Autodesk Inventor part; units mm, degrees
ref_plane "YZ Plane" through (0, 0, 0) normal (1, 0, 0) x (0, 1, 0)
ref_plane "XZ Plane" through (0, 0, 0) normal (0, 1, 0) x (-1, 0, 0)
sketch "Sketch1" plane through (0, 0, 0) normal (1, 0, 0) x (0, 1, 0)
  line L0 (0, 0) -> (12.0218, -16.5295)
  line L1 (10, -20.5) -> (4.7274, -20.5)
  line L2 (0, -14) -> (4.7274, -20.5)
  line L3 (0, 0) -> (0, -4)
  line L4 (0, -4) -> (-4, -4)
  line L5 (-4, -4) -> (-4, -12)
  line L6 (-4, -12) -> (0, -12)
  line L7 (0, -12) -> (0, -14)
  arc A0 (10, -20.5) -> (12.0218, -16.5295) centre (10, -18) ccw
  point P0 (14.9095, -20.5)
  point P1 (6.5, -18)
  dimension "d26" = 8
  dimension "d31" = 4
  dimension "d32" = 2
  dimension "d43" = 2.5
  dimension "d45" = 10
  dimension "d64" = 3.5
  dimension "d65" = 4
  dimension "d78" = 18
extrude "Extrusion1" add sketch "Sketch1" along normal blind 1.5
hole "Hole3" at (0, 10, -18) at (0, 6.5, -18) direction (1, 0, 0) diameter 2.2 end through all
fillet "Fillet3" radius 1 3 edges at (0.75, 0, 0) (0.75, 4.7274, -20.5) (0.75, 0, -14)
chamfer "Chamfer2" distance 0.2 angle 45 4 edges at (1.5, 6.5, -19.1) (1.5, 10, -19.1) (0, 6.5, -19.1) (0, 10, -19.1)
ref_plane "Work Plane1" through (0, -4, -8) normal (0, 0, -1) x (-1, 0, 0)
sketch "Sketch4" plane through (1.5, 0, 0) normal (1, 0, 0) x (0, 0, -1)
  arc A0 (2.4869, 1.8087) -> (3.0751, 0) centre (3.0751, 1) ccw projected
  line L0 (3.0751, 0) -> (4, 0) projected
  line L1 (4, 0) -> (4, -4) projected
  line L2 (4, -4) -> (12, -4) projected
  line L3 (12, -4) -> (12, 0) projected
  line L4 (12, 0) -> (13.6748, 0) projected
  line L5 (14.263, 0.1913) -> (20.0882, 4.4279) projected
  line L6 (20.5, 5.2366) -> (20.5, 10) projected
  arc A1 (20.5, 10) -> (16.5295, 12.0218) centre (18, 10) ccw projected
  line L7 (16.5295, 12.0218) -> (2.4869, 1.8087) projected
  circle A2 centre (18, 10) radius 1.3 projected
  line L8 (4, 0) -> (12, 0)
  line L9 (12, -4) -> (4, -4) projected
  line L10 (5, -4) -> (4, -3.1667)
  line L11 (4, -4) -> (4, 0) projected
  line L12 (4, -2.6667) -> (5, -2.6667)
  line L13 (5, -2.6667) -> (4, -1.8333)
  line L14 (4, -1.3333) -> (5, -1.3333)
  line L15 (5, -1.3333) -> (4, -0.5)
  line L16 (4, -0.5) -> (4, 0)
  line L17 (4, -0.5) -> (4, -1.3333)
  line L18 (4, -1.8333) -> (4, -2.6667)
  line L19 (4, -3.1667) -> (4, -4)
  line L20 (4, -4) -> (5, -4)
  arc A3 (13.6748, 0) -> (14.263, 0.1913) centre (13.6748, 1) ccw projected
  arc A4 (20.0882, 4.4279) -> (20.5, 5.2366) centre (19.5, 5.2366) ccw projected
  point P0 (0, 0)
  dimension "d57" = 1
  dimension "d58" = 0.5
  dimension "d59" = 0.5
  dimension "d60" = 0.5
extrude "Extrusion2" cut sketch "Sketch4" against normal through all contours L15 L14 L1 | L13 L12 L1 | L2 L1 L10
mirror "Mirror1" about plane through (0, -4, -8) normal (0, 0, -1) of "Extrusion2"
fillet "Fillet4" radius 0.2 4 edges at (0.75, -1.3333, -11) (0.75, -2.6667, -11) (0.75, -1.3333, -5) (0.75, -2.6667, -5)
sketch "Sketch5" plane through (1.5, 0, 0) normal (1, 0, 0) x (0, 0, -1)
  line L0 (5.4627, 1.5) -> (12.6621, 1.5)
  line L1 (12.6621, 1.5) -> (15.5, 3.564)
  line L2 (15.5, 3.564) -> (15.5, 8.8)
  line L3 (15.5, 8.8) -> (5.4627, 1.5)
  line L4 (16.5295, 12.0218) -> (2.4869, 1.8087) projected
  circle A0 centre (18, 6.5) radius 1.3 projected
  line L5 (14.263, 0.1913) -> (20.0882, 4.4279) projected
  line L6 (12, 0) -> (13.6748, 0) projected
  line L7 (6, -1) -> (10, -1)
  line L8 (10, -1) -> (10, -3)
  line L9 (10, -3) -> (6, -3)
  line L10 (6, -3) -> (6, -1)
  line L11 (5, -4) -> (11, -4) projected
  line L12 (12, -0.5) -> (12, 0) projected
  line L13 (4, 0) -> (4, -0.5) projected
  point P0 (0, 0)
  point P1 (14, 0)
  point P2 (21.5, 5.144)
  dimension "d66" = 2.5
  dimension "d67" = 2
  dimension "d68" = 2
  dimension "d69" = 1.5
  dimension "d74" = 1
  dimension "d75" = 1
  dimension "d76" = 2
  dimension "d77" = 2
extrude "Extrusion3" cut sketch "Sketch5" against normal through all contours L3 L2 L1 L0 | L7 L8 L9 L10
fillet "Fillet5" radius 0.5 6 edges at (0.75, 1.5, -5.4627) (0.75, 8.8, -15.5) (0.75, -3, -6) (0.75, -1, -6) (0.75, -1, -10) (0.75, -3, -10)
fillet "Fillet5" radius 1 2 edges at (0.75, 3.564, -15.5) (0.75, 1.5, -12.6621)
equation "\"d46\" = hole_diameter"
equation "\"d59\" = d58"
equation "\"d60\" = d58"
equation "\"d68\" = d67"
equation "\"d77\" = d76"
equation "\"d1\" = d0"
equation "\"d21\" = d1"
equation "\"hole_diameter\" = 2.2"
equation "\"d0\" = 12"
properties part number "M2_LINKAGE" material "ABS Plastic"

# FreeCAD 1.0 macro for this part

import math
import FreeCAD as App
import Part
import Sketcher
from FreeCAD import Vector


def edges_at(feature, points):
    """Names of the edges that pass closest to the given points."""
    edges = feature.Shape.Edges
    near = lambda p: min(range(len(edges)), key=lambda i: edges[i].distToShape(Part.Vertex(*p))[0])
    return sorted({f"Edge{near(p) + 1}" for p in points})

doc = App.newDocument("Part")
body = doc.addObject("PartDesign::Body", "Body")

# Sketch on YZ plane
sketch1 = body.newObject("Sketcher::SketchObject", "Sketch")
sketch1.AttachmentSupport = (doc.getObject("YZ_Plane"), [""])
sketch1.MapMode = "FlatFace"
sketch1.addGeometry(Part.LineSegment(Vector(12, -16.5, 0), Vector(0, 0, 0)), False)
sketch1.addGeometry(Part.LineSegment(Vector(0, 0, 0), Vector(0, -4, 0)), False)
sketch1.addGeometry(Part.LineSegment(Vector(0, -4, 0), Vector(-4, -4, 0)), False)
sketch1.addGeometry(Part.LineSegment(Vector(-4, -4, 0), Vector(-4, -12, 0)), False)
sketch1.addGeometry(Part.LineSegment(Vector(-4, -12, 0), Vector(0, -12, 0)), False)
sketch1.addGeometry(Part.LineSegment(Vector(0, -12, 0), Vector(0, -14, 0)), False)
sketch1.addGeometry(Part.LineSegment(Vector(0, -14, 0), Vector(4.7, -20.5, 0)), False)
sketch1.addGeometry(Part.LineSegment(Vector(4.7, -20.5, 0), Vector(10, -20.5, 0)), False)
sketch1.addGeometry(Part.ArcOfCircle(Part.Circle(Vector(10, -18, 0), Vector(0, 0, 1), 2.5), math.radians(-90), math.radians(36)), False)
sketch1.addConstraint(Sketcher.Constraint("Coincident", 0, 2, 1, 1))
sketch1.addConstraint(Sketcher.Constraint("Coincident", 1, 2, 2, 1))
sketch1.addConstraint(Sketcher.Constraint("Coincident", 2, 2, 3, 1))
sketch1.addConstraint(Sketcher.Constraint("Coincident", 3, 2, 4, 1))
sketch1.addConstraint(Sketcher.Constraint("Coincident", 4, 2, 5, 1))
sketch1.addConstraint(Sketcher.Constraint("Coincident", 5, 2, 6, 1))
sketch1.addConstraint(Sketcher.Constraint("Coincident", 6, 2, 7, 1))
sketch1.addConstraint(Sketcher.Constraint("Tangent", 7, 2, 8, 1))
sketch1.addConstraint(Sketcher.Constraint("Tangent", 8, 2, 0, 1))
sketch1.addConstraint(Sketcher.Constraint("Vertical", 1))
sketch1.addConstraint(Sketcher.Constraint("Horizontal", 2))
sketch1.addConstraint(Sketcher.Constraint("Vertical", 3))
sketch1.addConstraint(Sketcher.Constraint("Horizontal", 4))
sketch1.addConstraint(Sketcher.Constraint("Vertical", 5))
sketch1.addConstraint(Sketcher.Constraint("Horizontal", 7))
sketch1.addConstraint(Sketcher.Constraint("Coincident", 0, 2, -1, 1))
sketch1.addConstraint(Sketcher.Constraint("PointOnObject", 4, 2, -2))
sketch1.addConstraint(Sketcher.Constraint("Parallel", 0, 6))
sketch1.addConstraint(Sketcher.Constraint("Equal", 4, 1))
sketch1.addConstraint(Sketcher.Constraint("Radius", 8, 2.5))
sketch1.addConstraint(Sketcher.Constraint("DistanceX", 2, 2, 2, 1, 4.0))
sketch1.addConstraint(Sketcher.Constraint("DistanceY", 3, 2, 3, 1, 8.0))
sketch1.addConstraint(Sketcher.Constraint("DistanceY", 5, 2, 5, 1, 2.0))
sketch1.addConstraint(Sketcher.Constraint("DistanceX", -1, 1, 8, 3, 10.0))
sketch1.addConstraint(Sketcher.Constraint("DistanceY", 8, 3, -1, 1, 18.0))
pad1 = body.newObject("PartDesign::Pad", "Pad")
pad1.Profile = sketch1
pad1.Length = 1.5

# Sketch on YZ plane
sketch2 = body.newObject("Sketcher::SketchObject", "Sketch001")
sketch2.AttachmentSupport = (doc.getObject("YZ_Plane"), [""])
sketch2.MapMode = "FlatFace"
sketch2.addGeometry(Part.Circle(Vector(10, -18, 0), Vector(0, 0, 1), 1.1), False)
sketch2.addGeometry(Part.Circle(Vector(6.5, -18, 0), Vector(0, 0, 1), 1.1), False)
sketch2.addConstraint(Sketcher.Constraint("Equal", 0, 1))
sketch2.addConstraint(Sketcher.Constraint("Horizontal", 0, 3, 1, 3))
sketch2.addConstraint(Sketcher.Constraint("Diameter", 0, 2.2))
sketch2.addConstraint(Sketcher.Constraint("DistanceX", -1, 1, 0, 3, 10.0))
sketch2.addConstraint(Sketcher.Constraint("DistanceY", 0, 3, -1, 1, 18.0))
sketch2.addConstraint(Sketcher.Constraint("DistanceX", -1, 1, 1, 3, 6.5))
doc.recompute()
hole = body.newObject("PartDesign::Hole", "Hole")
hole.Profile = sketch2
hole.ThreadType = "None"
hole.Diameter = 2.2
hole.DepthType = "ThroughAll"
hole.Reversed = True
doc.recompute()

fillet = body.newObject("PartDesign::Fillet", "Fillet")
fillet.Base = (hole, edges_at(hole, [(0.75, 0, 0), (0.75, 4.727, -20.5), (0.75, 0, -14)]))
fillet.Radius = 1
doc.recompute()

chamfer = body.newObject("PartDesign::Chamfer", "Chamfer")
chamfer.Base = (fillet, edges_at(fillet, [
    (1.5, 6.5, -19.1),
    (1.5, 10, -19.1),
    (0, 6.5, -19.1),
    (0, 10, -19.1),
]))
chamfer.Size = 0.2

# Sketch on YZ plane
sketch3 = body.newObject("Sketcher::SketchObject", "Sketch002")
sketch3.AttachmentSupport = (doc.getObject("YZ_Plane"), [""])
sketch3.MapMode = "FlatFace"
sketch3.AttachmentOffset = App.Placement(Vector(0, 0, 1.5), App.Rotation())
sketch3.addGeometry(Part.LineSegment(Vector(-1.3, -5, 0), Vector(-0.5, -4, 0)), False)
sketch3.addGeometry(Part.LineSegment(Vector(-0.5, -4, 0), Vector(-1.3, -4, 0)), False)
sketch3.addGeometry(Part.LineSegment(Vector(-1.3, -4, 0), Vector(-1.3, -5, 0)), False)
sketch3.addGeometry(Part.LineSegment(Vector(-2.7, -5, 0), Vector(-1.8, -4, 0)), False)
sketch3.addGeometry(Part.LineSegment(Vector(-1.8, -4, 0), Vector(-2.7, -4, 0)), False)
sketch3.addGeometry(Part.LineSegment(Vector(-2.7, -4, 0), Vector(-2.7, -5, 0)), False)
sketch3.addGeometry(Part.LineSegment(Vector(-4, -4, 0), Vector(-4, -5, 0)), False)
sketch3.addGeometry(Part.LineSegment(Vector(-4, -5, 0), Vector(-3.2, -4, 0)), False)
sketch3.addGeometry(Part.LineSegment(Vector(-3.2, -4, 0), Vector(-4, -4, 0)), False)
sketch3.addConstraint(Sketcher.Constraint("Coincident", 0, 2, 1, 1))
sketch3.addConstraint(Sketcher.Constraint("Coincident", 1, 2, 2, 1))
sketch3.addConstraint(Sketcher.Constraint("Coincident", 2, 2, 0, 1))
sketch3.addConstraint(Sketcher.Constraint("Coincident", 3, 2, 4, 1))
sketch3.addConstraint(Sketcher.Constraint("Coincident", 4, 2, 5, 1))
sketch3.addConstraint(Sketcher.Constraint("Coincident", 5, 2, 3, 1))
sketch3.addConstraint(Sketcher.Constraint("Coincident", 6, 2, 7, 1))
sketch3.addConstraint(Sketcher.Constraint("Coincident", 7, 2, 8, 1))
sketch3.addConstraint(Sketcher.Constraint("Coincident", 8, 2, 6, 1))
sketch3.addConstraint(Sketcher.Constraint("Horizontal", 1))
sketch3.addConstraint(Sketcher.Constraint("Vertical", 2))
sketch3.addConstraint(Sketcher.Constraint("Horizontal", 4))
sketch3.addConstraint(Sketcher.Constraint("Vertical", 5))
sketch3.addConstraint(Sketcher.Constraint("Vertical", 6))
sketch3.addConstraint(Sketcher.Constraint("Horizontal", 8))
sketch3.addConstraint(Sketcher.Constraint("Parallel", 0, 3))
sketch3.addConstraint(Sketcher.Constraint("Parallel", 3, 7))
sketch3.addConstraint(Sketcher.Constraint("Horizontal", 1, 2, 3, 2))
sketch3.addConstraint(Sketcher.Constraint("Horizontal", 2, 2, 5, 2))
sketch3.addConstraint(Sketcher.Constraint("Horizontal", 5, 2, 6, 2))
sketch3.addConstraint(Sketcher.Constraint("Horizontal", 4, 2, 7, 2))
sketch3.addConstraint(Sketcher.Constraint("DistanceY", 2, 2, 2, 1, 1.0))
sketch3.addConstraint(Sketcher.Constraint("DistanceX", 0, 2, -1, 1, 0.5))
sketch3.addConstraint(Sketcher.Constraint("DistanceX", 3, 2, 1, 2, 0.5))
sketch3.addConstraint(Sketcher.Constraint("DistanceX", 7, 2, 4, 2, 0.5))
sketch3.addConstraint(Sketcher.Constraint("DistanceY", 0, 2, -1, 1, 4.0))
sketch3.addConstraint(Sketcher.Constraint("DistanceX", 6, 2, -1, 1, 4.0))
pocket1 = body.newObject("PartDesign::Pocket", "Pocket")
pocket1.Profile = sketch3
pocket1.Type = "ThroughAll"
doc.recompute()

datumplane = body.newObject("PartDesign::Plane", "DatumPlane")
datumplane.AttachmentSupport = (doc.getObject("XY_Plane"), [""])
datumplane.MapMode = "FlatFace"
datumplane.AttachmentOffset = App.Placement(Vector(0, 0, -8), App.Rotation())
mirrored = body.newObject("PartDesign::Mirrored", "Mirrored")
mirrored.Originals = [pocket1]
mirrored.MirrorPlane = (datumplane, [""])
body.Tip = mirrored
doc.recompute()

fillet2 = body.newObject("PartDesign::Fillet", "Fillet001")
fillet2.Base = (mirrored, edges_at(mirrored, [
    (0.75, -1.333, -11),
    (0.75, -2.667, -11),
    (0.75, -1.333, -5),
    (0.75, -2.667, -5),
]))
fillet2.Radius = 0.2

# Sketch on YZ plane
sketch4 = body.newObject("Sketcher::SketchObject", "Sketch003")
sketch4.AttachmentSupport = (doc.getObject("YZ_Plane"), [""])
sketch4.MapMode = "FlatFace"
sketch4.AttachmentOffset = App.Placement(Vector(0, 0, 1.5), App.Rotation())
sketch4.addGeometry(Part.LineSegment(Vector(8.8, -15.5, 0), Vector(1.5, -5.5, 0)), False)
sketch4.addGeometry(Part.LineSegment(Vector(1.5, -5.5, 0), Vector(1.5, -12.7, 0)), False)
sketch4.addGeometry(Part.LineSegment(Vector(1.5, -12.7, 0), Vector(3.6, -15.5, 0)), False)
sketch4.addGeometry(Part.LineSegment(Vector(3.6, -15.5, 0), Vector(8.8, -15.5, 0)), False)
sketch4.addGeometry(Part.LineSegment(Vector(-1, -10, 0), Vector(-1, -6, 0)), False)
sketch4.addGeometry(Part.LineSegment(Vector(-1, -6, 0), Vector(-3, -6, 0)), False)
sketch4.addGeometry(Part.LineSegment(Vector(-3, -6, 0), Vector(-3, -10, 0)), False)
sketch4.addGeometry(Part.LineSegment(Vector(-3, -10, 0), Vector(-1, -10, 0)), False)
sketch4.addConstraint(Sketcher.Constraint("Coincident", 0, 2, 1, 1))
sketch4.addConstraint(Sketcher.Constraint("Coincident", 1, 2, 2, 1))
sketch4.addConstraint(Sketcher.Constraint("Coincident", 2, 2, 3, 1))
sketch4.addConstraint(Sketcher.Constraint("Coincident", 3, 2, 0, 1))
sketch4.addConstraint(Sketcher.Constraint("Coincident", 4, 2, 5, 1))
sketch4.addConstraint(Sketcher.Constraint("Coincident", 5, 2, 6, 1))
sketch4.addConstraint(Sketcher.Constraint("Coincident", 6, 2, 7, 1))
sketch4.addConstraint(Sketcher.Constraint("Coincident", 7, 2, 4, 1))
sketch4.addConstraint(Sketcher.Constraint("Vertical", 1))
sketch4.addConstraint(Sketcher.Constraint("Horizontal", 3))
sketch4.addConstraint(Sketcher.Constraint("Vertical", 4))
sketch4.addConstraint(Sketcher.Constraint("Horizontal", 5))
sketch4.addConstraint(Sketcher.Constraint("Vertical", 6))
sketch4.addConstraint(Sketcher.Constraint("Horizontal", 7))
sketch4.addConstraint(Sketcher.Constraint("Parallel", 0, 2))
sketch4.addConstraint(Sketcher.Constraint("DistanceX", 5, 2, 5, 1, 2.0))
sketch4.addConstraint(Sketcher.Constraint("DistanceX", 4, 2, -1, 1, 1.0))
sketch4.addConstraint(Sketcher.Constraint("DistanceX", -1, 1, 0, 2, 1.5))
sketch4.addConstraint(Sketcher.Constraint("DistanceY", 4, 1, 4, 2, 4.0))
sketch4.addConstraint(Sketcher.Constraint("DistanceY", 4, 2, -1, 1, 6.0))
sketch4.addConstraint(Sketcher.Constraint("DistanceY", 2, 2, -1, 1, 15.5))
sketch4.addConstraint(Sketcher.Constraint("DistanceX", -1, 1, 3, 2, 8.8))
sketch4.addConstraint(Sketcher.Constraint("DistanceX", 3, 1, 3, 2, 5.236))
sketch4.addConstraint(Sketcher.Constraint("Distance", 2, 3.509))
pocket2 = body.newObject("PartDesign::Pocket", "Pocket001")
pocket2.Profile = sketch4
pocket2.Type = "ThroughAll"
doc.recompute()

fillet3 = body.newObject("PartDesign::Fillet", "Fillet002")
fillet3.Base = (pocket2, edges_at(pocket2, [
    (0.75, 1.5, -5.463),
    (0.75, 8.8, -15.5),
    (0.75, -3, -6),
    (0.75, -1, -6),
    (0.75, -1, -10),
    (0.75, -3, -10),
]))
fillet3.Radius = 0.5
doc.recompute()

fillet4 = body.newObject("PartDesign::Fillet", "Fillet003")
fillet4.Base = (fillet3, edges_at(fillet3, [(0.75, 3.564, -15.5), (0.75, 1.5, -12.662)]))
fillet4.Radius = 1

doc.recompute()
